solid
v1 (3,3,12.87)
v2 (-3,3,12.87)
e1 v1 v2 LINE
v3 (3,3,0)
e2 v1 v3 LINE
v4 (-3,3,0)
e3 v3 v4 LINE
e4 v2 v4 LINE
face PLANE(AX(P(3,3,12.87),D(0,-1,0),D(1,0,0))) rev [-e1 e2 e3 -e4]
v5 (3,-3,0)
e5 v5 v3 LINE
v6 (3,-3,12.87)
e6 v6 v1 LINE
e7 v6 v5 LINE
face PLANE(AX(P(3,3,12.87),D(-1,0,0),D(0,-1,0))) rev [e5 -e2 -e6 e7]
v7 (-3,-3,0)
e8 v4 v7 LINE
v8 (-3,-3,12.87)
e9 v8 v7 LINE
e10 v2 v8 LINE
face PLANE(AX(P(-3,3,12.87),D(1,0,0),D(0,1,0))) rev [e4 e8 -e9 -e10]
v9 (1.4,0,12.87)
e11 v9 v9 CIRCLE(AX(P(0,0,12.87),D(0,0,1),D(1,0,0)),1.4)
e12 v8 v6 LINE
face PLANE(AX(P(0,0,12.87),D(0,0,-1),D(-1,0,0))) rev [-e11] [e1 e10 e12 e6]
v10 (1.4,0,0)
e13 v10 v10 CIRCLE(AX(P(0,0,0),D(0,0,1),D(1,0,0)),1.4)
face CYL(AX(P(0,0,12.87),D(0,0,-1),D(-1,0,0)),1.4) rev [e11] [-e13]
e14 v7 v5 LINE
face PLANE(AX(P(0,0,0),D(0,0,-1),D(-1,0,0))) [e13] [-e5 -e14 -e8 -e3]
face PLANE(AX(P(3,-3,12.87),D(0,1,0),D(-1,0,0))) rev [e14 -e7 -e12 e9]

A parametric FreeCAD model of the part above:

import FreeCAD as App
import Part
import Sketcher
from FreeCAD import Vector


def add_polygon(sketch, points):
    """Adds a closed chain of lines whose ends are joined by coincident constraints."""
    first, n = sketch.GeometryCount, len(points)
    for a, b in zip(points, points[1:] + points[:1]):
        sketch.addGeometry(Part.LineSegment(App.Vector(*a, 0), App.Vector(*b, 0)), False)
    for i in range(n):
        sketch.addConstraint(Sketcher.Constraint("Coincident", first + i, 2, first + (i + 1) % n, 1))

doc = App.newDocument("Part")
params = doc.addObject("Spreadsheet::Sheet", "Params")
for row, (alias, value) in enumerate([
    ("sketch1_diameter", "2.8 mm"),
    ("sketch1_width", "6 mm"),
    ("pad1_length", "12.87 mm"),
], start=1):
    params.set(f"A{row}", alias)
    params.set(f"B{row}", "=" + value)
    params.setAlias(f"B{row}", alias)

body = doc.addObject("PartDesign::Body", "Body")

# Sketch on XY plane
sketch1 = body.newObject("Sketcher::SketchObject", "Sketch")
sketch1.AttachmentSupport = (doc.getObject("XY_Plane"), [""])
sketch1.MapMode = "FlatFace"
add_polygon(sketch1, [(-3, 3), (-3, -3), (3, -3), (3, 3)])  # lines 0-3
sketch1.addGeometry(Part.Circle(Vector(0, 0, 0), Vector(0, 0, 1), 1.4), False)  # 4
sketch1.addConstraint([
    Sketcher.Constraint("Vertical", 0),
    Sketcher.Constraint("Horizontal", 1),
    Sketcher.Constraint("Vertical", 2),
    Sketcher.Constraint("Horizontal", 3),
    Sketcher.Constraint("Coincident", 4, 3, -1, 1),
    Sketcher.Constraint("Symmetric", 0, 2, 2, 2, -1, 1),
    Sketcher.Constraint("Equal", 3, 0),
    Sketcher.Constraint("Diameter", 4, 2.8),
    Sketcher.Constraint("DistanceX", 1, 1, 1, 2, 6.0),
])
sketch1.setExpression("Constraints[11]", "Params.sketch1_diameter")
sketch1.setExpression("Constraints[12]", "Params.sketch1_width")
pad1 = body.newObject("PartDesign::Pad", "Pad")
pad1.Profile = sketch1
pad1.setExpression("Length", "Params.pad1_length")

doc.recompute()
